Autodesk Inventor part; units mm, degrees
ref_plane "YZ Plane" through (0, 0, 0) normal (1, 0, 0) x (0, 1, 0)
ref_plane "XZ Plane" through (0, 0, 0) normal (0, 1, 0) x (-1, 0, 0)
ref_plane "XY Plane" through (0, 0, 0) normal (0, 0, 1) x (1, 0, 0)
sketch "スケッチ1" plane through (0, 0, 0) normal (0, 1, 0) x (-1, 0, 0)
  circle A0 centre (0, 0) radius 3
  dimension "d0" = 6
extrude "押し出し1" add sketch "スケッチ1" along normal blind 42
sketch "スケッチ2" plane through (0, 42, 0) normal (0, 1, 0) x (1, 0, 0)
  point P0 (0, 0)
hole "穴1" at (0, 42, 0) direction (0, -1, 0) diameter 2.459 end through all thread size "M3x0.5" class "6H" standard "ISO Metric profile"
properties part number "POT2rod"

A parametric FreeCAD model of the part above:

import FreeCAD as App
import Part
import Sketcher

doc = App.newDocument("Part")
params = doc.addObject("Spreadsheet::Sheet", "Params")
for row, (alias, value) in enumerate([
    ("sketch1_diameter", "6 mm"),
    ("pad1_length", "42 mm"),
    ("hole_diameter", "2.459 mm"),
], start=1):
    params.set(f"A{row}", alias)
    params.set(f"B{row}", "=" + value)
    params.setAlias(f"B{row}", alias)

body = doc.addObject("PartDesign::Body", "Body")

# Sketch on XZ plane
sketch1 = body.newObject("Sketcher::SketchObject", "Sketch")
sketch1.AttachmentSupport = (doc.getObject("XZ_Plane"), [""])
sketch1.MapMode = "FlatFace"
sketch1.addGeometry(Part.Circle(App.Vector(0, 0, 0), App.Vector(0, 0, 1), 3), False)
sketch1.addConstraint(Sketcher.Constraint("Coincident", 0, 3, -1, 1))
sketch1.addConstraint(Sketcher.Constraint("Diameter", 0, 6.0))
sketch1.setExpression("Constraints[1]", "Params.sketch1_diameter")
pad1 = body.newObject("PartDesign::Pad", "Pad")
pad1.Profile = sketch1
pad1.setExpression("Length", "Params.pad1_length")
pad1.Reversed = True

# Sketch on XZ plane
sketch2 = body.newObject("Sketcher::SketchObject", "Sketch001")
sketch2.AttachmentSupport = (doc.getObject("XZ_Plane"), [""])
sketch2.MapMode = "FlatFace"
sketch2.AttachmentOffset = App.Placement(App.Vector(0, 0, -42), App.Rotation())
sketch2.addGeometry(Part.Circle(App.Vector(0, 0, 0), App.Vector(0, 0, 1), 1.2), False)
sketch2.addConstraint(Sketcher.Constraint("Coincident", 0, 3, -1, 1))
sketch2.addConstraint(Sketcher.Constraint("Diameter", 0, 2.459))
doc.recompute()
hole = body.newObject("PartDesign::Hole", "Hole")
hole.Profile = sketch2
hole.ThreadType = "None"
hole.setExpression("Diameter", "Params.hole_diameter")
hole.DepthType = "ThroughAll"
hole.Reversed = True

doc.recompute()
